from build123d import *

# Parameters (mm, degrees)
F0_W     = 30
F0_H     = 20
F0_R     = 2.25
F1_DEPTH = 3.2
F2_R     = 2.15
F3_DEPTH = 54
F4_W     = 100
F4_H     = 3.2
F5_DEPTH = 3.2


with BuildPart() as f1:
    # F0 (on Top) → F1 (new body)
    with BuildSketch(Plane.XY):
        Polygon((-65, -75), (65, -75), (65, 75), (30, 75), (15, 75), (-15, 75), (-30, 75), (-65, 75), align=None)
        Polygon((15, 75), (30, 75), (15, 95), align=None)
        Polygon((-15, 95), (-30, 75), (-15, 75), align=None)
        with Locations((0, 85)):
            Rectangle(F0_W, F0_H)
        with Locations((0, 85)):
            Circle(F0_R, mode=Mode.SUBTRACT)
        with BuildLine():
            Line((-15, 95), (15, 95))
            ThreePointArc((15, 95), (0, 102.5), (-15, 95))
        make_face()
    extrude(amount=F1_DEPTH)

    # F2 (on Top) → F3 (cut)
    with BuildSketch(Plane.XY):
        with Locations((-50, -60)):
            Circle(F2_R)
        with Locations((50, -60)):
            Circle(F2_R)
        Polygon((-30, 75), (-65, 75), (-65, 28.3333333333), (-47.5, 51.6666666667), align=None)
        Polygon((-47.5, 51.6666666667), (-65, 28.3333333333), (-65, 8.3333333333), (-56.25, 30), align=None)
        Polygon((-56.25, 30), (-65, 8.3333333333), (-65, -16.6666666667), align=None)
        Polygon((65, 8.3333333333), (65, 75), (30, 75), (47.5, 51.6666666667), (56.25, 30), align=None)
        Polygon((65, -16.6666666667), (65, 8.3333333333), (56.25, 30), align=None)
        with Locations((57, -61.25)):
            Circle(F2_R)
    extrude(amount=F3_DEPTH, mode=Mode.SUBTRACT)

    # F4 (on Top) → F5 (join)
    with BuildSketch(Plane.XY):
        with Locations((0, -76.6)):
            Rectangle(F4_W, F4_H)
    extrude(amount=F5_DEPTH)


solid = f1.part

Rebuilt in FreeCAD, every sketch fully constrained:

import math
import FreeCAD as App
import Part
import Sketcher

V = App.Vector


def add_polygon(sketch, points):
    """Adds a closed chain of lines whose ends are joined by coincident constraints."""
    first, n = sketch.GeometryCount, len(points)
    for a, b in zip(points, points[1:] + points[:1]):
        sketch.addGeometry(Part.LineSegment(App.Vector(*a, 0), App.Vector(*b, 0)), False)
    for i in range(n):
        sketch.addConstraint(Sketcher.Constraint("Coincident", first + i, 2, first + (i + 1) % n, 1))

doc = App.newDocument("Part")
body = doc.addObject("PartDesign::Body", "Body")

sketch1 = body.newObject("Sketcher::SketchObject", "Sketch")
sketch1.AttachmentSupport = (doc.getObject("XY_Plane"), [""])
sketch1.MapMode = "FlatFace"
sketch1.addGeometry(Part.LineSegment(V(-65, -75, 0), V(65, -75, 0)), False)
sketch1.addGeometry(Part.LineSegment(V(65, -75, 0), V(65, 75, 0)), False)
sketch1.addGeometry(Part.LineSegment(V(65, 75, 0), V(30, 75, 0)), False)
sketch1.addGeometry(Part.LineSegment(V(30, 75, 0), V(15, 95, 0)), False)
sketch1.addGeometry(Part.ArcOfCircle(Part.Circle(V(0, 83.8, 0), V(0, 0, 1), 18.8), math.radians(37), math.radians(143)), False)
sketch1.addGeometry(Part.LineSegment(V(-15, 95, 0), V(-30, 75, 0)), False)
sketch1.addGeometry(Part.LineSegment(V(-30, 75, 0), V(-65, 75, 0)), False)
sketch1.addGeometry(Part.LineSegment(V(-65, 75, 0), V(-65, -75, 0)), False)
sketch1.addGeometry(Part.Circle(V(0, 85, 0), V(0, 0, 1), 2.2), False)
sketch1.addConstraint(Sketcher.Constraint("Coincident", 0, 2, 1, 1))
sketch1.addConstraint(Sketcher.Constraint("Coincident", 1, 2, 2, 1))
sketch1.addConstraint(Sketcher.Constraint("Coincident", 2, 2, 3, 1))
sketch1.addConstraint(Sketcher.Constraint("Tangent", 3, 2, 4, 1))
sketch1.addConstraint(Sketcher.Constraint("Tangent", 4, 2, 5, 1))
sketch1.addConstraint(Sketcher.Constraint("Coincident", 5, 2, 6, 1))
sketch1.addConstraint(Sketcher.Constraint("Coincident", 6, 2, 7, 1))
sketch1.addConstraint(Sketcher.Constraint("Coincident", 7, 2, 0, 1))
sketch1.addConstraint(Sketcher.Constraint("Horizontal", 0))
sketch1.addConstraint(Sketcher.Constraint("Vertical", 1))
sketch1.addConstraint(Sketcher.Constraint("Horizontal", 2))
sketch1.addConstraint(Sketcher.Constraint("Horizontal", 6))
sketch1.addConstraint(Sketcher.Constraint("Vertical", 7))
sketch1.addConstraint(Sketcher.Constraint("Symmetric", 0, 2, 6, 2, -1, 1))
sketch1.addConstraint(Sketcher.Constraint("Symmetric", 3, 2, 4, 2, -2))
sketch1.addConstraint(Sketcher.Constraint("PointOnObject", 8, 3, -2))
sketch1.addConstraint(Sketcher.Constraint("Horizontal", 2, 2, 5, 2))
sketch1.addConstraint(Sketcher.Constraint("Diameter", 8, 4.5))
sketch1.addConstraint(Sketcher.Constraint("DistanceX", 0, 1, 0, 2, 130.0))
sketch1.addConstraint(Sketcher.Constraint("DistanceX", 2, 2, 2, 1, 35.0))
sketch1.addConstraint(Sketcher.Constraint("DistanceY", 1, 1, 1, 2, 150.0))
sketch1.addConstraint(Sketcher.Constraint("Radius", 4, 18.75))
sketch1.addConstraint(Sketcher.Constraint("Distance", 3, 25.0))
sketch1.addConstraint(Sketcher.Constraint("DistanceY", -1, 1, 8, 3, 85.0))
pad1 = body.newObject("PartDesign::Pad", "Pad")
pad1.Profile = sketch1
pad1.Length = 3.2

sketch2 = body.newObject("Sketcher::SketchObject", "Sketch001")
sketch2.AttachmentSupport = (doc.getObject("XY_Plane"), [""])
sketch2.MapMode = "FlatFace"
sketch2.addGeometry(Part.Circle(V(-50, -60, 0), V(0, 0, 1), 2.1), False)
sketch2.addGeometry(Part.Circle(V(50, -60, 0), V(0, 0, 1), 2.1), False)
add_polygon(sketch2, [(-30, 75), (-65, 75), (-65, -16.7), (-56.2, 30), (-47.5, 51.7)])
add_polygon(sketch2, [(65, 75), (30, 75), (47.5, 51.7), (56.2, 30), (65, -16.7)])
sketch2.addGeometry(Part.Circle(V(57, -61.2, 0), V(0, 0, 1), 2.1), False)
sketch2.addConstraint(Sketcher.Constraint("Horizontal", 2))
sketch2.addConstraint(Sketcher.Constraint("Vertical", 3))
sketch2.addConstraint(Sketcher.Constraint("Horizontal", 7))
sketch2.addConstraint(Sketcher.Constraint("Vertical", 11))
sketch2.addConstraint(Sketcher.Constraint("Equal", 0, 1))
sketch2.addConstraint(Sketcher.Constraint("Equal", 1, 12))
sketch2.addConstraint(Sketcher.Constraint("Symmetric", 0, 3, 1, 3, -2))
sketch2.addConstraint(Sketcher.Constraint("Symmetric", 6, 2, 7, 2, -2))
sketch2.addConstraint(Sketcher.Constraint("Symmetric", 5, 2, 8, 2, -2))
sketch2.addConstraint(Sketcher.Constraint("Symmetric", 4, 2, 9, 2, -2))
sketch2.addConstraint(Sketcher.Constraint("Symmetric", 3, 2, 10, 2, -2))
sketch2.addConstraint(Sketcher.Constraint("Diameter", 0, 4.3))
sketch2.addConstraint(Sketcher.Constraint("DistanceX", 2, 2, 2, 1, 35.0))
sketch2.addConstraint(Sketcher.Constraint("DistanceX", 0, 3, -1, 1, 50.0))
sketch2.addConstraint(Sketcher.Constraint("DistanceY", 0, 3, -1, 1, 60.0))
sketch2.addConstraint(Sketcher.Constraint("DistanceX", -1, 1, 12, 3, 57.0))
sketch2.addConstraint(Sketcher.Constraint("DistanceX", 2, 2, -1, 1, 65.0))
sketch2.addConstraint(Sketcher.Constraint("DistanceY", -1, 1, 2, 2, 75.0))
sketch2.addConstraint(Sketcher.Constraint("DistanceY", -1, 1, 4, 2, 30.0))
sketch2.addConstraint(Sketcher.Constraint("DistanceX", 5, 2, 8, 2, 95.0))
sketch2.addConstraint(Sketcher.Constraint("DistanceY", 12, 3, -1, 1, 61.25))
sketch2.addConstraint(Sketcher.Constraint("DistanceX", 4, 2, -1, 1, 56.25))
sketch2.addConstraint(Sketcher.Constraint("Distance", 5, 23.366791))
sketch2.addConstraint(Sketcher.Constraint("DistanceY", 3, 2, 3, 1, 91.666667))
pocket1 = body.newObject("PartDesign::Pocket", "Pocket")
pocket1.Profile = sketch2
pocket1.Length = 54
pocket1.Reversed = True

sketch3 = body.newObject("Sketcher::SketchObject", "Sketch002")
sketch3.AttachmentSupport = (doc.getObject("XY_Plane"), [""])
sketch3.MapMode = "FlatFace"
add_polygon(sketch3, [(-50, -75), (-50, -78.2), (50, -78.2), (50, -75)])
sketch3.addConstraint(Sketcher.Constraint("Vertical", 0))
sketch3.addConstraint(Sketcher.Constraint("Horizontal", 1))
sketch3.addConstraint(Sketcher.Constraint("Vertical", 2))
sketch3.addConstraint(Sketcher.Constraint("Horizontal", 3))
sketch3.addConstraint(Sketcher.Constraint("DistanceX", 1, 1, 1, 2, 100.0))
sketch3.addConstraint(Sketcher.Constraint("DistanceY", 0, 2, 0, 1, 3.2))
sketch3.addConstraint(Sketcher.Constraint("DistanceX", 0, 2, -1, 1, 50.0))
sketch3.addConstraint(Sketcher.Constraint("DistanceY", 2, 2, -1, 1, 75.0))
pad2 = body.newObject("PartDesign::Pad", "Pad001")
pad2.Profile = sketch3
pad2.Length = 3.2

doc.recompute()
